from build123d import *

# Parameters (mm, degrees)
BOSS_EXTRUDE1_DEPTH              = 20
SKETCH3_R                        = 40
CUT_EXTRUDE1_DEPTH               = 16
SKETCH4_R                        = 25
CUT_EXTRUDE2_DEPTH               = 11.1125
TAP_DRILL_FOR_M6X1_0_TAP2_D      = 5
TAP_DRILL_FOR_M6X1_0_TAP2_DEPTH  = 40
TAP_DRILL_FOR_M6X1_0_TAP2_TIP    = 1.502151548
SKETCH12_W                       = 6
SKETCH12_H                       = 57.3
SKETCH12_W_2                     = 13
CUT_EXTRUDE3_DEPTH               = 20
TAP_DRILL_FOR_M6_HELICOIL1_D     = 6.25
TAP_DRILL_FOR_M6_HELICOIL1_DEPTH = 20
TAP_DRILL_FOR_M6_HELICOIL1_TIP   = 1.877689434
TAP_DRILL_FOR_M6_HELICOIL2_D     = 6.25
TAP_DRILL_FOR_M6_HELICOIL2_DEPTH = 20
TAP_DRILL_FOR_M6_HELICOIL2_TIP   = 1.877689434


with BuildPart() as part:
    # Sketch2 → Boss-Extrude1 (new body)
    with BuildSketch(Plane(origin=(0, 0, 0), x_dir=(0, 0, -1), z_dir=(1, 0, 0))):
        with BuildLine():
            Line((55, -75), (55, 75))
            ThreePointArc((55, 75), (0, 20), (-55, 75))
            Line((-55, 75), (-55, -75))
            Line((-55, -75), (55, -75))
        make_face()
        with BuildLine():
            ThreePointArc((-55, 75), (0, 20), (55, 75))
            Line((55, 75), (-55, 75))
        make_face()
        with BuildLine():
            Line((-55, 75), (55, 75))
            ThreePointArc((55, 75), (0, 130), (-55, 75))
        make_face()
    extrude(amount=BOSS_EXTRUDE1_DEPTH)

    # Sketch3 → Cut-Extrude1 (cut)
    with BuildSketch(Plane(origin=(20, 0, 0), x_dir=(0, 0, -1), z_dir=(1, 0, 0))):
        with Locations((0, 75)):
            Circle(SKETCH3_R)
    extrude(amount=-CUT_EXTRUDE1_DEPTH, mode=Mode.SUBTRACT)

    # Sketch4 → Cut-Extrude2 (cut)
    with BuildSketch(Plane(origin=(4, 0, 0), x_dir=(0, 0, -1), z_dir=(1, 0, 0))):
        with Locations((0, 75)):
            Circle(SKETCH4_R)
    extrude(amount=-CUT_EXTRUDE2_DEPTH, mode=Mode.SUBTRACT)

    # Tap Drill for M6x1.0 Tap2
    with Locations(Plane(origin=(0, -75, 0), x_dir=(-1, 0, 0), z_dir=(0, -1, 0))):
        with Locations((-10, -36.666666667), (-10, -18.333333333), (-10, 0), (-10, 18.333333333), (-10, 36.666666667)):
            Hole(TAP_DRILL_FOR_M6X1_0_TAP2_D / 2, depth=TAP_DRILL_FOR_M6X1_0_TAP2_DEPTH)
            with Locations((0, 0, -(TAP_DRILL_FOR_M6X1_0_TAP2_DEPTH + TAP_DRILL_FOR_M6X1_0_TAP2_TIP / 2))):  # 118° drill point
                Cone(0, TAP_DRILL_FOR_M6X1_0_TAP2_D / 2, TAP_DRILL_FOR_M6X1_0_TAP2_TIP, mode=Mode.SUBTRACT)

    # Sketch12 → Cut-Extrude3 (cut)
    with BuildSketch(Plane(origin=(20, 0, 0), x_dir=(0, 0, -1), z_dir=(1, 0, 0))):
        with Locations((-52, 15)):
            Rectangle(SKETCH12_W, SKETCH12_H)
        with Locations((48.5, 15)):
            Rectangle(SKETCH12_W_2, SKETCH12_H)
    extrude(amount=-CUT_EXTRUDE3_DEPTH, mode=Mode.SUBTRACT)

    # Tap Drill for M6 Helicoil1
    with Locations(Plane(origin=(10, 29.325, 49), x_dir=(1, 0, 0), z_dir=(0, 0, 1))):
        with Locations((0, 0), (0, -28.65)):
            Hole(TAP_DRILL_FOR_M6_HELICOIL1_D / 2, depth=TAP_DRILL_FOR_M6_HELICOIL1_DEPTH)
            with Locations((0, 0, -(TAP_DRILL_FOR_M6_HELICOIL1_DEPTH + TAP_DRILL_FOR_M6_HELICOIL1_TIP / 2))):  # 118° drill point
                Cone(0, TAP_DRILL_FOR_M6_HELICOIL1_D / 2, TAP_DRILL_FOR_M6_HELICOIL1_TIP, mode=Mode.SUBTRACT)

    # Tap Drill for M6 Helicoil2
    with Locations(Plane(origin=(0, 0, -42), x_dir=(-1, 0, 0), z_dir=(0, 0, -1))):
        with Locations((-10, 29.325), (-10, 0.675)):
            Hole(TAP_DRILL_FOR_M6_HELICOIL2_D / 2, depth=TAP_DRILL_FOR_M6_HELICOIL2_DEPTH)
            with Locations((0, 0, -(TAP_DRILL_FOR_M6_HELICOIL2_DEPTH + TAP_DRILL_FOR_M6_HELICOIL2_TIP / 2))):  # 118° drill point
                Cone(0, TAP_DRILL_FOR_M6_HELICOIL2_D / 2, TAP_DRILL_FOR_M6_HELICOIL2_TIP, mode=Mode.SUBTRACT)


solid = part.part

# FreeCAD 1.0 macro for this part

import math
import FreeCAD as App
import Part
import Sketcher
from FreeCAD import Vector


def add_polygon(sketch, points):
    """Adds a closed chain of lines whose ends are joined by coincident constraints."""
    first, n = sketch.GeometryCount, len(points)
    for a, b in zip(points, points[1:] + points[:1]):
        sketch.addGeometry(Part.LineSegment(App.Vector(*a, 0), App.Vector(*b, 0)), False)
    for i in range(n):
        sketch.addConstraint(Sketcher.Constraint("Coincident", first + i, 2, first + (i + 1) % n, 1))

doc = App.newDocument("Part")
body = doc.addObject("PartDesign::Body", "Body")

# Sketch on YZ plane
sketch1 = body.newObject("Sketcher::SketchObject", "Sketch")
sketch1.AttachmentSupport = (doc.getObject("YZ_Plane"), [""])
sketch1.MapMode = "FlatFace"
sketch1.addGeometry(Part.LineSegment(Vector(75, 55, 0), Vector(-75, 55, 0)), False)
sketch1.addGeometry(Part.LineSegment(Vector(-75, 55, 0), Vector(-75, -55, 0)), False)
sketch1.addGeometry(Part.LineSegment(Vector(-75, -55, 0), Vector(75, -55, 0)), False)
sketch1.addGeometry(Part.ArcOfCircle(Part.Circle(Vector(75, 0, 0), Vector(0, 0, 1), 55), math.radians(-90), math.radians(90)), False)
sketch1.addConstraint(Sketcher.Constraint("Coincident", 0, 2, 1, 1))
sketch1.addConstraint(Sketcher.Constraint("Coincident", 1, 2, 2, 1))
sketch1.addConstraint(Sketcher.Constraint("Tangent", 2, 2, 3, 1))
sketch1.addConstraint(Sketcher.Constraint("Tangent", 3, 2, 0, 1))
sketch1.addConstraint(Sketcher.Constraint("Horizontal", 0))
sketch1.addConstraint(Sketcher.Constraint("Vertical", 1))
sketch1.addConstraint(Sketcher.Constraint("Horizontal", 2))
sketch1.addConstraint(Sketcher.Constraint("Symmetric", 0, 2, 2, 2, -1, 1))
sketch1.addConstraint(Sketcher.Constraint("Radius", 3, 55.0))
sketch1.addConstraint(Sketcher.Constraint("DistanceX", 0, 2, 0, 1, 150.0))
pad1 = body.newObject("PartDesign::Pad", "Pad")
pad1.Profile = sketch1
pad1.Length = 20

# Sketch on YZ plane
sketch2 = body.newObject("Sketcher::SketchObject", "Sketch001")
sketch2.AttachmentSupport = (doc.getObject("YZ_Plane"), [""])
sketch2.MapMode = "FlatFace"
sketch2.AttachmentOffset = App.Placement(Vector(0, 0, 20), App.Rotation())
sketch2.addGeometry(Part.Circle(Vector(75, 0, 0), Vector(0, 0, 1), 40), False)
sketch2.addConstraint(Sketcher.Constraint("PointOnObject", 0, 3, -1))
sketch2.addConstraint(Sketcher.Constraint("Diameter", 0, 80.0))
sketch2.addConstraint(Sketcher.Constraint("DistanceX", -1, 1, 0, 3, 75.0))
pocket1 = body.newObject("PartDesign::Pocket", "Pocket")
pocket1.Profile = sketch2
pocket1.Length = 16

# Sketch on YZ plane
sketch3 = body.newObject("Sketcher::SketchObject", "Sketch002")
sketch3.AttachmentSupport = (doc.getObject("YZ_Plane"), [""])
sketch3.MapMode = "FlatFace"
sketch3.AttachmentOffset = App.Placement(Vector(0, 0, 4), App.Rotation())
sketch3.addGeometry(Part.Circle(Vector(75, 0, 0), Vector(0, 0, 1), 25), False)
sketch3.addConstraint(Sketcher.Constraint("PointOnObject", 0, 3, -1))
sketch3.addConstraint(Sketcher.Constraint("Diameter", 0, 50.0))
sketch3.addConstraint(Sketcher.Constraint("DistanceX", -1, 1, 0, 3, 75.0))
pocket2 = body.newObject("PartDesign::Pocket", "Pocket001")
pocket2.Profile = sketch3
pocket2.Length = 11.1125

# Sketch on XZ plane
sketch4 = body.newObject("Sketcher::SketchObject", "Sketch003")
sketch4.AttachmentSupport = (doc.getObject("XZ_Plane"), [""])
sketch4.MapMode = "FlatFace"
sketch4.AttachmentOffset = App.Placement(Vector(0, 0, 75), App.Rotation())
sketch4.addGeometry(Part.Circle(Vector(10, 36.666667, 0), Vector(0, 0, 1), 2.5), False)
sketch4.addGeometry(Part.Circle(Vector(10, 18.333333, 0), Vector(0, 0, 1), 2.5), False)
sketch4.addGeometry(Part.Circle(Vector(10, 0, 0), Vector(0, 0, 1), 2.5), False)
sketch4.addGeometry(Part.Circle(Vector(10, -18.333333, 0), Vector(0, 0, 1), 2.5), False)
sketch4.addGeometry(Part.Circle(Vector(10, -36.666667, 0), Vector(0, 0, 1), 2.5), False)
sketch4.addConstraint(Sketcher.Constraint("Equal", 0, 1))
sketch4.addConstraint(Sketcher.Constraint("Equal", 1, 2))
sketch4.addConstraint(Sketcher.Constraint("Equal", 2, 3))
sketch4.addConstraint(Sketcher.Constraint("Equal", 3, 4))
sketch4.addConstraint(Sketcher.Constraint("Symmetric", 1, 3, 3, 3, -1))
sketch4.addConstraint(Sketcher.Constraint("Symmetric", 0, 3, 4, 3, -1))
sketch4.addConstraint(Sketcher.Constraint("PointOnObject", 2, 3, -1))
sketch4.addConstraint(Sketcher.Constraint("Vertical", 0, 3, 1, 3))
sketch4.addConstraint(Sketcher.Constraint("Vertical", 1, 3, 2, 3))
sketch4.addConstraint(Sketcher.Constraint("Diameter", 0, 5.0))
sketch4.addConstraint(Sketcher.Constraint("DistanceX", -1, 1, 0, 3, 10.0))
sketch4.addConstraint(Sketcher.Constraint("DistanceY", 3, 3, 0, 3, 55.0))
sketch4.addConstraint(Sketcher.Constraint("DistanceY", -1, 1, 0, 3, 36.666667))
doc.recompute()
hole = body.newObject("PartDesign::Hole", "Hole")
hole.Profile = sketch4
hole.ThreadType = "None"
hole.Diameter = 5
hole.DepthType = "Dimension"
hole.Depth = 40
hole.DrillPoint = "Angled"
hole.DrillPointAngle = 118

# Sketch on YZ plane
sketch5 = body.newObject("Sketcher::SketchObject", "Sketch004")
sketch5.AttachmentSupport = (doc.getObject("YZ_Plane"), [""])
sketch5.MapMode = "FlatFace"
sketch5.AttachmentOffset = App.Placement(Vector(0, 0, 20), App.Rotation())
add_polygon(sketch5, [(43.65, 55), (-13.65, 55), (-13.65, 49), (43.65, 49)])  # lines 0-3
add_polygon(sketch5, [(43.65, -42), (-13.65, -42), (-13.65, -55), (43.65, -55)])  # lines 4-7
sketch5.addConstraint(Sketcher.Constraint("Horizontal", 0))
sketch5.addConstraint(Sketcher.Constraint("Vertical", 1))
sketch5.addConstraint(Sketcher.Constraint("Horizontal", 2))
sketch5.addConstraint(Sketcher.Constraint("Vertical", 3))
sketch5.addConstraint(Sketcher.Constraint("Horizontal", 4))
sketch5.addConstraint(Sketcher.Constraint("Vertical", 5))
sketch5.addConstraint(Sketcher.Constraint("Horizontal", 6))
sketch5.addConstraint(Sketcher.Constraint("Vertical", 7))
sketch5.addConstraint(Sketcher.Constraint("Symmetric", 0, 2, 5, 2, -1))
sketch5.addConstraint(Sketcher.Constraint("Vertical", 3, 2, 6, 2))
sketch5.addConstraint(Sketcher.Constraint("DistanceY", 1, 2, 1, 1, 6.0))
sketch5.addConstraint(Sketcher.Constraint("DistanceY", 5, 2, 5, 1, 13.0))
sketch5.addConstraint(Sketcher.Constraint("DistanceX", 0, 2, 0, 1, 57.3))
sketch5.addConstraint(Sketcher.Constraint("DistanceY", -1, 1, 0, 2, 55.0))
sketch5.addConstraint(Sketcher.Constraint("DistanceX", 0, 2, -1, 1, 13.65))
pocket3 = body.newObject("PartDesign::Pocket", "Pocket002")
pocket3.Profile = sketch5
pocket3.Length = 20

# Sketch on XY plane
sketch6 = body.newObject("Sketcher::SketchObject", "Sketch005")
sketch6.AttachmentSupport = (doc.getObject("XY_Plane"), [""])
sketch6.MapMode = "FlatFace"
sketch6.AttachmentOffset = App.Placement(Vector(0, 0, 49), App.Rotation())
sketch6.addGeometry(Part.Circle(Vector(10, 29.325, 0), Vector(0, 0, 1), 3.125), False)
sketch6.addGeometry(Part.Circle(Vector(10, 0.675, 0), Vector(0, 0, 1), 3.125), False)
sketch6.addConstraint(Sketcher.Constraint("Equal", 0, 1))
sketch6.addConstraint(Sketcher.Constraint("Vertical", 0, 3, 1, 3))
sketch6.addConstraint(Sketcher.Constraint("Diameter", 0, 6.25))
sketch6.addConstraint(Sketcher.Constraint("DistanceX", -1, 1, 0, 3, 10.0))
sketch6.addConstraint(Sketcher.Constraint("DistanceY", 1, 3, 0, 3, 28.65))
sketch6.addConstraint(Sketcher.Constraint("DistanceY", -1, 1, 0, 3, 29.325))
doc.recompute()
hole2 = body.newObject("PartDesign::Hole", "Hole001")
hole2.Profile = sketch6
hole2.ThreadType = "None"
hole2.Diameter = 6.25
hole2.DepthType = "Dimension"
hole2.Depth = 20
hole2.DrillPoint = "Angled"
hole2.DrillPointAngle = 118

# Sketch on XY plane
sketch7 = body.newObject("Sketcher::SketchObject", "Sketch006")
sketch7.AttachmentSupport = (doc.getObject("XY_Plane"), [""])
sketch7.MapMode = "FlatFace"
sketch7.AttachmentOffset = App.Placement(Vector(0, 0, -42), App.Rotation())
sketch7.addGeometry(Part.Circle(Vector(10, 29.325, 0), Vector(0, 0, 1), 3.125), False)
sketch7.addGeometry(Part.Circle(Vector(10, 0.675, 0), Vector(0, 0, 1), 3.125), False)
sketch7.addConstraint(Sketcher.Constraint("Equal", 0, 1))
sketch7.addConstraint(Sketcher.Constraint("Vertical", 0, 3, 1, 3))
sketch7.addConstraint(Sketcher.Constraint("Diameter", 0, 6.25))
sketch7.addConstraint(Sketcher.Constraint("DistanceX", -1, 1, 0, 3, 10.0))
sketch7.addConstraint(Sketcher.Constraint("DistanceY", 1, 3, 0, 3, 28.65))
sketch7.addConstraint(Sketcher.Constraint("DistanceY", -1, 1, 0, 3, 29.325))
doc.recompute()
hole3 = body.newObject("PartDesign::Hole", "Hole002")
hole3.Profile = sketch7
hole3.ThreadType = "None"
hole3.Diameter = 6.25
hole3.DepthType = "Dimension"
hole3.Depth = 20
hole3.DrillPoint = "Angled"
hole3.DrillPointAngle = 118
hole3.Reversed = True

doc.recompute()
